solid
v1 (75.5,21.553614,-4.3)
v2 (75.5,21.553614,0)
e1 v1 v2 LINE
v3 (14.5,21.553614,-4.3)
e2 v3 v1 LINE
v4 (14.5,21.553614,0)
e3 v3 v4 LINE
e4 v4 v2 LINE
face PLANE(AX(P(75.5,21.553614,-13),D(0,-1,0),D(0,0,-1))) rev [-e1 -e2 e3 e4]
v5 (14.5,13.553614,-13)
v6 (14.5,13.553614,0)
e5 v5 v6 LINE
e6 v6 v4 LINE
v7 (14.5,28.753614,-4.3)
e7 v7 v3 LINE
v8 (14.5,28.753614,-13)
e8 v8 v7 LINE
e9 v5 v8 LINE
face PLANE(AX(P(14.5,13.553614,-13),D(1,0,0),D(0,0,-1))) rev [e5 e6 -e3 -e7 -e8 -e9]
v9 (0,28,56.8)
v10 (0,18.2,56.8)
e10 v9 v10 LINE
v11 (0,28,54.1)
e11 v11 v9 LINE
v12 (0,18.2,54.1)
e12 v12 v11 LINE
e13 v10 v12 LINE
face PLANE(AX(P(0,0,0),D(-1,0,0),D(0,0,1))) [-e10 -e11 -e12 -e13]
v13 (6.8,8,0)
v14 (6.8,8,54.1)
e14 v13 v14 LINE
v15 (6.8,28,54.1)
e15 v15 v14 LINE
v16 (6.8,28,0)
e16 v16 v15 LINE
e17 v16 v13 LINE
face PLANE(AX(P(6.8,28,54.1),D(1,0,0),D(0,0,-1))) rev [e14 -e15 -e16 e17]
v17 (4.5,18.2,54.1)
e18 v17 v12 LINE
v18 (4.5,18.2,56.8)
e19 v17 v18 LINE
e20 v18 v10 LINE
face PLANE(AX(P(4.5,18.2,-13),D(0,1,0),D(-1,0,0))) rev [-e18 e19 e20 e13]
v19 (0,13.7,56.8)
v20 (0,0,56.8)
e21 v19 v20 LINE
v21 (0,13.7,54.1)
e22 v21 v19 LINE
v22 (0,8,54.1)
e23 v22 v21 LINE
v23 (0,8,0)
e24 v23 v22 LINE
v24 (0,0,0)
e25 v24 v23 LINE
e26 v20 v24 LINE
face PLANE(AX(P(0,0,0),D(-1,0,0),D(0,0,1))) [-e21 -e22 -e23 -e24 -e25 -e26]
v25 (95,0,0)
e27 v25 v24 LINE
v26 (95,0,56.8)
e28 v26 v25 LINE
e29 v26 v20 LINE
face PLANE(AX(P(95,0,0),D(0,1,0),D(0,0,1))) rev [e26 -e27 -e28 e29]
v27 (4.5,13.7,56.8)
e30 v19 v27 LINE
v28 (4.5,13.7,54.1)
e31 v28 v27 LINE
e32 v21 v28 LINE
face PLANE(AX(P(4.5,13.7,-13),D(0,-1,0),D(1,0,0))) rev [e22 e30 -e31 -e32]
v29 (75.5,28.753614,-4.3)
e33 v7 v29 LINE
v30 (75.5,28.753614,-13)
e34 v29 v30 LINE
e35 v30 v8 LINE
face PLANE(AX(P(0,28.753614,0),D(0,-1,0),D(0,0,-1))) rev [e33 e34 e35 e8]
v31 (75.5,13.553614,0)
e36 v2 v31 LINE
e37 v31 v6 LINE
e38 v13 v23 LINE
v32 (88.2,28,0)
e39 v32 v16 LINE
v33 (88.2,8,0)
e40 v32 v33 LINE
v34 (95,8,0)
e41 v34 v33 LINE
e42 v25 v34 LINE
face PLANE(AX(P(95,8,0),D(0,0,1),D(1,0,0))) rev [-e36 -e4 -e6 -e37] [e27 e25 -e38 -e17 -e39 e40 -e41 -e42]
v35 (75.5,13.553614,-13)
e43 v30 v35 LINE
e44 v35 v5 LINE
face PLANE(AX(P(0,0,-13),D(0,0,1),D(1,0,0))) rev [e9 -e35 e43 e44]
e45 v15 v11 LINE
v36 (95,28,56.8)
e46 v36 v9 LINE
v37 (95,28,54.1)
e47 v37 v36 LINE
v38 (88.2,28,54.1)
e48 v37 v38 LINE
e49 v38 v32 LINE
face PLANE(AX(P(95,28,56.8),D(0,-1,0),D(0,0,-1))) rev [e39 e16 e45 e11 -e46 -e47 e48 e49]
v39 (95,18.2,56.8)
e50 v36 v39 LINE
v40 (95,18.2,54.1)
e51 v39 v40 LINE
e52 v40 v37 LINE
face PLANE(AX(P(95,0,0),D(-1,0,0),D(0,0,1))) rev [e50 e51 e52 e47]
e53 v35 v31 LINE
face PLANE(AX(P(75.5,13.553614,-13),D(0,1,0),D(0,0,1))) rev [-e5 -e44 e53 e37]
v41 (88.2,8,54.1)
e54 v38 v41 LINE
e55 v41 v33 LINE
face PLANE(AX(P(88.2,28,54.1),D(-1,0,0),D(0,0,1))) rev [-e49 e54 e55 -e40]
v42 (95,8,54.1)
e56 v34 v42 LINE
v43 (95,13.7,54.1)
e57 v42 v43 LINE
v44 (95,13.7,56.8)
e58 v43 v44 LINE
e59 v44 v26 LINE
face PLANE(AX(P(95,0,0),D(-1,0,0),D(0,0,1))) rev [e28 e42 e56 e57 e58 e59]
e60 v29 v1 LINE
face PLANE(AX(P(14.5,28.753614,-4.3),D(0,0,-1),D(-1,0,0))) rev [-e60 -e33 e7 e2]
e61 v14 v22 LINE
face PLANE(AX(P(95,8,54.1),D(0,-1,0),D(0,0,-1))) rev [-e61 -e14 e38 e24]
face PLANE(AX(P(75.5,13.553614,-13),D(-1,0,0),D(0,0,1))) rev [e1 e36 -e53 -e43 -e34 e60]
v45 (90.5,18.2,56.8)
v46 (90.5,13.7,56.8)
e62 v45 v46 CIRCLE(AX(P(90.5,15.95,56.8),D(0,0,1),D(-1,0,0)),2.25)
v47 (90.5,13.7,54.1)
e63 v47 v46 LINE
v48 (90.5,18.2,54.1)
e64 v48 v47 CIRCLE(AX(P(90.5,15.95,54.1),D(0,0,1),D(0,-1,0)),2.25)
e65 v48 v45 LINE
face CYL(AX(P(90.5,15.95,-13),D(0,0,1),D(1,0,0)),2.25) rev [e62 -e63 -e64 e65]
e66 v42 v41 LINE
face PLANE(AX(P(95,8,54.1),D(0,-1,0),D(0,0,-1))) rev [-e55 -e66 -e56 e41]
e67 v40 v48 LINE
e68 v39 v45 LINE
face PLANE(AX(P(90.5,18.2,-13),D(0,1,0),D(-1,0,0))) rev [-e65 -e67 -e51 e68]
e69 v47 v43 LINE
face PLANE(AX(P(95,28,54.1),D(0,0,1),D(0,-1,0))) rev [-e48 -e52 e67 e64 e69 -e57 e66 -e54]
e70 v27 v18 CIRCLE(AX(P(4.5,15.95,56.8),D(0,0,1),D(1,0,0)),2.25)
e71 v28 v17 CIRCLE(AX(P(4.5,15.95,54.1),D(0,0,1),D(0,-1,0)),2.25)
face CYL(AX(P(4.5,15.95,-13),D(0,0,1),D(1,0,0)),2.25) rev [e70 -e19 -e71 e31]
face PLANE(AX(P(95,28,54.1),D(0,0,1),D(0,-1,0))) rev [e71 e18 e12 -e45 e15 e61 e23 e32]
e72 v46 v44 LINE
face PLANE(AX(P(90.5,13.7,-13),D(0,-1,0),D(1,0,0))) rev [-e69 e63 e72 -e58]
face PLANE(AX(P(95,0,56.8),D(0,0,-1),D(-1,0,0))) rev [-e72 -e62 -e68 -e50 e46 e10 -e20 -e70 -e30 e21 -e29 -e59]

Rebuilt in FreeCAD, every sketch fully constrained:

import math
import FreeCAD as App
import Part
import Sketcher
Q = App.Units.Quantity


def add_polygon(sketch, points):
    """Adds a closed chain of lines whose ends are joined by coincident constraints."""
    first, n = sketch.GeometryCount, len(points)
    for a, b in zip(points, points[1:] + points[:1]):
        sketch.addGeometry(Part.LineSegment(App.Vector(*a, 0), App.Vector(*b, 0)), False)
    for i in range(n):
        sketch.addConstraint(Sketcher.Constraint("Coincident", first + i, 2, first + (i + 1) % n, 1))

doc = App.newDocument("Part")
body = doc.addObject("PartDesign::Body", "Body")

# Sketch on YZ plane
sketch1 = body.newObject("Sketcher::SketchObject", "Sketch")
sketch1.AttachmentSupport = (doc.getObject("YZ_Plane"), [""])
sketch1.MapMode = "FlatFace"
add_polygon(sketch1, [(0, 56.8), (0, 0), (8, 0), (8, 54.1), (28, 54.1), (28, 56.8)])  # lines 0-5
sketch1.addConstraint([
    Sketcher.Constraint("Vertical", 0),
    Sketcher.Constraint("Horizontal", 1),
    Sketcher.Constraint("Vertical", 2),
    Sketcher.Constraint("Horizontal", 3),
    Sketcher.Constraint("Vertical", 4),
    Sketcher.Constraint("Horizontal", 5),
    Sketcher.Constraint("Coincident", 0, 2, -1, 1),
    Sketcher.Constraint("DistanceX", 1, 1, 1, 2, Q("8 mm")),
    Sketcher.Constraint("DistanceX", 3, 1, 3, 2, Q("20 mm")),
    Sketcher.Constraint("DistanceY", 0, 2, 0, 1, Q("56.8 mm")),
    Sketcher.Constraint("DistanceY", 2, 1, 2, 2, Q("54.1 mm")),
])
pad1 = body.newObject("PartDesign::Pad", "Pad")
pad1.Profile = sketch1
pad1.Length = 95

# Sketch on XZ plane
sketch2 = body.newObject("Sketcher::SketchObject", "Sketch001")
sketch2.AttachmentSupport = (doc.getObject("XZ_Plane"), [""])
sketch2.MapMode = "FlatFace"
sketch2.AttachmentOffset = App.Placement(App.Vector(0, 0, -8), App.Rotation())
add_polygon(sketch2, [(6.8, 0), (6.8, 54.1), (88.2, 54.1), (88.2, 0)])  # lines 0-3
sketch2.addConstraint([
    Sketcher.Constraint("Vertical", 0),
    Sketcher.Constraint("Horizontal", 1),
    Sketcher.Constraint("Vertical", 2),
    Sketcher.Constraint("Horizontal", 3),
    Sketcher.Constraint("PointOnObject", 2, 2, -1),
    Sketcher.Constraint("DistanceX", 1, 1, 1, 2, Q("81.4 mm")),
    Sketcher.Constraint("DistanceY", 0, 1, 0, 2, Q("54.1 mm")),
    Sketcher.Constraint("DistanceX", -1, 1, 0, 2, Q("6.8 mm")),
])
pad2 = body.newObject("PartDesign::Pad", "Pad001")
pad2.Profile = sketch2
pad2.Length = 20
pad2.Reversed = True

# Sketch on XY plane
sketch3 = body.newObject("Sketcher::SketchObject", "Sketch002")
sketch3.AttachmentSupport = (doc.getObject("XY_Plane"), [""])
sketch3.MapMode = "FlatFace"
add_polygon(sketch3, [(75.5, 21.553614), (75.5, 13.553614), (14.5, 13.553614), (14.5, 21.553614)])  # lines 0-3
sketch3.addConstraint([
    Sketcher.Constraint("Vertical", 0),
    Sketcher.Constraint("Horizontal", 1),
    Sketcher.Constraint("Vertical", 2),
    Sketcher.Constraint("Horizontal", 3),
    Sketcher.Constraint("DistanceX", 1, 2, 1, 1, Q("61 mm")),
    Sketcher.Constraint("DistanceY", 0, 2, 0, 1, Q("8 mm")),
    Sketcher.Constraint("DistanceX", -1, 1, 0, 2, Q("75.5 mm")),
    Sketcher.Constraint("DistanceY", -1, 1, 0, 2, Q("13.553614 mm")),
])
pad3 = body.newObject("PartDesign::Pad", "Pad002")
pad3.Profile = sketch3
pad3.Length = 13
pad3.Reversed = True

# Sketch on XZ plane
sketch4 = body.newObject("Sketcher::SketchObject", "Sketch003")
sketch4.AttachmentSupport = (doc.getObject("XZ_Plane"), [""])
sketch4.MapMode = "FlatFace"
sketch4.AttachmentOffset = App.Placement(App.Vector(0, 0, -21.553614), App.Rotation())
add_polygon(sketch4, [(14.5, -13), (14.5, -4.3), (75.5, -4.3), (75.5, -13)])  # lines 0-3
sketch4.addConstraint([
    Sketcher.Constraint("Vertical", 0),
    Sketcher.Constraint("Horizontal", 1),
    Sketcher.Constraint("Vertical", 2),
    Sketcher.Constraint("Horizontal", 3),
    Sketcher.Constraint("DistanceX", 1, 1, 1, 2, Q("61 mm")),
    Sketcher.Constraint("DistanceY", 0, 1, 0, 2, Q("8.7 mm")),
    Sketcher.Constraint("DistanceY", 2, 2, -1, 1, Q("13 mm")),
    Sketcher.Constraint("DistanceX", -1, 1, 0, 2, Q("14.5 mm")),
])
pad4 = body.newObject("PartDesign::Pad", "Pad003")
pad4.Profile = sketch4
pad4.Length = 7.2
pad4.Reversed = True

# Sketch on XY plane
sketch5 = body.newObject("Sketcher::SketchObject", "Sketch004")
sketch5.AttachmentSupport = (doc.getObject("XY_Plane"), [""])
sketch5.MapMode = "FlatFace"
sketch5.AttachmentOffset = App.Placement(App.Vector(0, 0, 56.8), App.Rotation())
sketch5.addGeometry([
    Part.LineSegment(App.Vector(4.5, 18.2, 0), App.Vector(0, 18.2, 0)),  # 0
    Part.LineSegment(App.Vector(0, 18.2, 0), App.Vector(0, 13.7, 0)),  # 1
    Part.LineSegment(App.Vector(0, 13.7, 0), App.Vector(4.5, 13.7, 0)),  # 2
    Part.ArcOfCircle(Part.Circle(App.Vector(4.5, 15.95, 0), App.Vector(0, 0, 1), 2.25), math.radians(-90), math.radians(90)),  # 3
    Part.LineSegment(App.Vector(90.5, 13.7, 0), App.Vector(95, 13.7, 0)),  # 4
    Part.LineSegment(App.Vector(95, 13.7, 0), App.Vector(95, 18.2, 0)),  # 5
    Part.LineSegment(App.Vector(95, 18.2, 0), App.Vector(90.5, 18.2, 0)),  # 6
    Part.ArcOfCircle(Part.Circle(App.Vector(90.5, 15.95, 0), App.Vector(0, 0, 1), 2.25), math.radians(90), math.radians(270)),  # 7
], False)
sketch5.addConstraint([
    Sketcher.Constraint("Coincident", 0, 2, 1, 1),
    Sketcher.Constraint("Coincident", 1, 2, 2, 1),
    Sketcher.Constraint("Tangent", 2, 2, 3, 1),
    Sketcher.Constraint("Tangent", 3, 2, 0, 1),
    Sketcher.Constraint("Coincident", 4, 2, 5, 1),
    Sketcher.Constraint("Coincident", 5, 2, 6, 1),
    Sketcher.Constraint("Tangent", 6, 2, 7, 1),
    Sketcher.Constraint("Tangent", 7, 2, 4, 1),
    Sketcher.Constraint("Horizontal", 0),
    Sketcher.Constraint("Vertical", 1),
    Sketcher.Constraint("Horizontal", 2),
    Sketcher.Constraint("Horizontal", 4),
    Sketcher.Constraint("Vertical", 5),
    Sketcher.Constraint("Horizontal", 6),
    Sketcher.Constraint("Equal", 3, 7),
    Sketcher.Constraint("PointOnObject", 0, 2, -2),
    Sketcher.Constraint("Horizontal", 3, 3, 7, 3),
    Sketcher.Constraint("Equal", 2, 4),
    Sketcher.Constraint("Equal", 6, 1),
    Sketcher.Constraint("Radius", 3, Q("2.25 mm")),
    Sketcher.Constraint("DistanceX", -1, 1, 4, 2, Q("95 mm")),
    Sketcher.Constraint("DistanceY", -1, 1, 0, 2, Q("18.2 mm")),
])
pocket1 = body.newObject("PartDesign::Pocket", "Pocket")
pocket1.Profile = sketch5
pocket1.Type = "ThroughAll"

doc.recompute()
